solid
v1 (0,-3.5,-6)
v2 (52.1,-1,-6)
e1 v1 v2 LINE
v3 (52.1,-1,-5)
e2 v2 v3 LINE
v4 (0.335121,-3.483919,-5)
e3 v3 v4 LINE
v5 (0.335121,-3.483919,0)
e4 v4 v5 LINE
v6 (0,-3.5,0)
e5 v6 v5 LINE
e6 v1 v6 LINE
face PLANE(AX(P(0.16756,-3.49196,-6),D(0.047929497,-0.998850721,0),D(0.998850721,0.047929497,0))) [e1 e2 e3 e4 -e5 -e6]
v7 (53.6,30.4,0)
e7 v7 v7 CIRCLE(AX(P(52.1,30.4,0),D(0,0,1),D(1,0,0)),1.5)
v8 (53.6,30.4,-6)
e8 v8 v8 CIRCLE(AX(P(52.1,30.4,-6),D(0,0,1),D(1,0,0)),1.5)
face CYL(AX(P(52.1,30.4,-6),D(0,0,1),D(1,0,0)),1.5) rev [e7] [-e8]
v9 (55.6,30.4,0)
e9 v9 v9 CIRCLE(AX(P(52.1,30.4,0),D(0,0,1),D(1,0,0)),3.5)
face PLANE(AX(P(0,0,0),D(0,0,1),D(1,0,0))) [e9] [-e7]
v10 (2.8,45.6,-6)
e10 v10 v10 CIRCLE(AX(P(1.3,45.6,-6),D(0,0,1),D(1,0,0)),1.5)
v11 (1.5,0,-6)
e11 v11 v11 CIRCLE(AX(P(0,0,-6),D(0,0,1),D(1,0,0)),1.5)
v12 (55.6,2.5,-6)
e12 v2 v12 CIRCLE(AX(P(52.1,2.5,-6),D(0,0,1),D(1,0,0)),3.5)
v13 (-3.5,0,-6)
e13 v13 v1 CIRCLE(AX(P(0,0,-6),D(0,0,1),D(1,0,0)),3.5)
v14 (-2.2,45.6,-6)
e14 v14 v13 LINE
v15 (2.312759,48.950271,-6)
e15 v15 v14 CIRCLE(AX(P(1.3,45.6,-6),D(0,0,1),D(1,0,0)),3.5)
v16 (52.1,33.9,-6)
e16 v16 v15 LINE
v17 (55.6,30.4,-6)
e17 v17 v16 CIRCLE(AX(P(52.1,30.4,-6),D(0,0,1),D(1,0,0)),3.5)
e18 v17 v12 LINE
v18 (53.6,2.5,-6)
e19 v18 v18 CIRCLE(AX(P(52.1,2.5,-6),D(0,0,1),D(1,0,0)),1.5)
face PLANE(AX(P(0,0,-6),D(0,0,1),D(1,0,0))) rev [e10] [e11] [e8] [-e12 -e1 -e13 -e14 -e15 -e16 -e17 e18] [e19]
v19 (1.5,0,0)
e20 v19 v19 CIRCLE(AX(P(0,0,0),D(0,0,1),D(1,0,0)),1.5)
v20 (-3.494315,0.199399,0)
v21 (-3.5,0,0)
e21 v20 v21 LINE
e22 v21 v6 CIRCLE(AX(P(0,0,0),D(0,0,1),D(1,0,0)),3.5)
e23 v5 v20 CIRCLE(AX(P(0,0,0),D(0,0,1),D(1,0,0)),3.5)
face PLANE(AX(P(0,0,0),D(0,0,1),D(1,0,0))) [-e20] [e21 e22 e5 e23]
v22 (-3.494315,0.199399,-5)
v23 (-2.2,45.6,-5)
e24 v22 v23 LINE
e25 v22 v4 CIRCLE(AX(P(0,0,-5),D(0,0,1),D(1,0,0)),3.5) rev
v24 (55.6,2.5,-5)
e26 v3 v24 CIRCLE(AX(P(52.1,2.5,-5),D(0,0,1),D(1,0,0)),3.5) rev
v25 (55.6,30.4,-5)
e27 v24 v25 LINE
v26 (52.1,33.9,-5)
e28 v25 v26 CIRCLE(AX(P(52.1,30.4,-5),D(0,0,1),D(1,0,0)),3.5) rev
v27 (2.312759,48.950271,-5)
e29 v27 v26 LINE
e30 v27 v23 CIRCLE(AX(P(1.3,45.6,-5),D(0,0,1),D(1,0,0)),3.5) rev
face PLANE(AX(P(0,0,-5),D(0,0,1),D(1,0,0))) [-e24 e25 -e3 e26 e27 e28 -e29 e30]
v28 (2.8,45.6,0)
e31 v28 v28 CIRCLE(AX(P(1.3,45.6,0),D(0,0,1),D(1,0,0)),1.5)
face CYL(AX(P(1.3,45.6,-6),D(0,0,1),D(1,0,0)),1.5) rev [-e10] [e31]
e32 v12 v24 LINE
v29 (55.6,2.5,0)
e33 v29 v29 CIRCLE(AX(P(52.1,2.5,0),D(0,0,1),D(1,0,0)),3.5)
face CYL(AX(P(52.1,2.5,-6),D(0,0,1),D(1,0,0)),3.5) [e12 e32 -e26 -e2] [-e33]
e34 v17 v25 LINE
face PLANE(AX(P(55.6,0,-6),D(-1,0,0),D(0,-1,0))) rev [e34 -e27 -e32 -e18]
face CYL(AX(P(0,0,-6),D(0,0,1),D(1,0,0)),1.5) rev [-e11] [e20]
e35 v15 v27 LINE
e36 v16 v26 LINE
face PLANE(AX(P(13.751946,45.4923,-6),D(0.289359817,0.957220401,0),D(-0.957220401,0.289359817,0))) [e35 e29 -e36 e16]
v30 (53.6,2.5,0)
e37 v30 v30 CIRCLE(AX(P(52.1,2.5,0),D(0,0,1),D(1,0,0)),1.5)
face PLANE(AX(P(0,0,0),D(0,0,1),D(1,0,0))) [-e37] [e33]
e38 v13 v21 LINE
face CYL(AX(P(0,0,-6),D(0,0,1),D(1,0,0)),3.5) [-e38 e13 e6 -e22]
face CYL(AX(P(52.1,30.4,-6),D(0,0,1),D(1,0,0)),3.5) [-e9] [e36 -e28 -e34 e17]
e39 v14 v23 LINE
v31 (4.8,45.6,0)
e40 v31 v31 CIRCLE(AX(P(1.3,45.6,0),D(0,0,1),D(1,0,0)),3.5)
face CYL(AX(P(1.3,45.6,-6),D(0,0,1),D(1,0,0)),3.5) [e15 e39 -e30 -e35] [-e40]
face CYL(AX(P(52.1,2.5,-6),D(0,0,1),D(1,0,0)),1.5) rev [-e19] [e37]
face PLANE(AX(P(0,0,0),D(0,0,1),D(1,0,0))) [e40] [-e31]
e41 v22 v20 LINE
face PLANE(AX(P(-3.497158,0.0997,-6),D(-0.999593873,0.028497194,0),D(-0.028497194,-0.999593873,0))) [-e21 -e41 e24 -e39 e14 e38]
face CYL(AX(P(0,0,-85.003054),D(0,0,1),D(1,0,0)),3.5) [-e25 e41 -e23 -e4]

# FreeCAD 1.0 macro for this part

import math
import FreeCAD as App
import Part
import Sketcher
from FreeCAD import Vector

doc = App.newDocument("Part")
body = doc.addObject("PartDesign::Body", "Body")

# Sketch on XY plane
sketch1 = body.newObject("Sketcher::SketchObject", "Sketch")
sketch1.AttachmentSupport = (doc.getObject("XY_Plane"), [""])
sketch1.MapMode = "FlatFace"
sketch1.addGeometry(Part.LineSegment(Vector(-2.2, 45.6, 0), Vector(-3.49, 0.2, 0)), False)
sketch1.addGeometry(Part.LineSegment(Vector(-3.49, 0.2, 0), Vector(-3.5, 0, 0)), False)
sketch1.addGeometry(Part.ArcOfCircle(Part.Circle(Vector(0, 0, 0), Vector(0, 0, 1), 3.5), math.radians(-180), math.radians(-90)), False)
sketch1.addGeometry(Part.LineSegment(Vector(0, -3.5, 0), Vector(0.34, -3.48, 0)), False)
sketch1.addGeometry(Part.LineSegment(Vector(0.34, -3.48, 0), Vector(52.1, -1, 0)), False)
sketch1.addGeometry(Part.ArcOfCircle(Part.Circle(Vector(52.1, 2.5, 0), Vector(0, 0, 1), 3.5), math.radians(-90), math.radians(0)), False)
sketch1.addGeometry(Part.LineSegment(Vector(55.6, 2.5, 0), Vector(55.6, 30.4, 0)), False)
sketch1.addGeometry(Part.ArcOfCircle(Part.Circle(Vector(52.1, 30.4, 0), Vector(0, 0, 1), 3.5), math.radians(0), math.radians(90)), False)
sketch1.addGeometry(Part.LineSegment(Vector(52.1, 33.9, 0), Vector(2.31, 48.95, 0)), False)
sketch1.addGeometry(Part.ArcOfCircle(Part.Circle(Vector(1.3, 45.6, 0), Vector(0, 0, 1), 3.5), math.radians(73), math.radians(180)), False)
sketch1.addGeometry(Part.Circle(Vector(1.3, 45.6, 0), Vector(0, 0, 1), 1.5), False)
sketch1.addGeometry(Part.Circle(Vector(0, 0, 0), Vector(0, 0, 1), 1.5), False)
sketch1.addGeometry(Part.Circle(Vector(52.1, 2.5, 0), Vector(0, 0, 1), 1.5), False)
sketch1.addGeometry(Part.Circle(Vector(52.1, 30.4, 0), Vector(0, 0, 1), 1.5), False)
sketch1.addConstraint(Sketcher.Constraint("Coincident", 0, 2, 1, 1))
sketch1.addConstraint(Sketcher.Constraint("Coincident", 1, 2, 2, 1))
sketch1.addConstraint(Sketcher.Constraint("Coincident", 2, 2, 3, 1))
sketch1.addConstraint(Sketcher.Constraint("Coincident", 3, 2, 4, 1))
sketch1.addConstraint(Sketcher.Constraint("Coincident", 4, 2, 5, 1))
sketch1.addConstraint(Sketcher.Constraint("Tangent", 5, 2, 6, 1))
sketch1.addConstraint(Sketcher.Constraint("Tangent", 6, 2, 7, 1))
sketch1.addConstraint(Sketcher.Constraint("Coincident", 7, 2, 8, 1))
sketch1.addConstraint(Sketcher.Constraint("Tangent", 8, 2, 9, 1))
sketch1.addConstraint(Sketcher.Constraint("Coincident", 9, 2, 0, 1))
sketch1.addConstraint(Sketcher.Constraint("Vertical", 6))
sketch1.addConstraint(Sketcher.Constraint("Coincident", 2, 3, -1, 1))
sketch1.addConstraint(Sketcher.Constraint("Coincident", 11, 3, -1, 1))
sketch1.addConstraint(Sketcher.Constraint("Coincident", 10, 3, 9, 3))
sketch1.addConstraint(Sketcher.Constraint("Coincident", 12, 3, 5, 3))
sketch1.addConstraint(Sketcher.Constraint("Coincident", 13, 3, 7, 3))
sketch1.addConstraint(Sketcher.Constraint("Equal", 2, 5))
sketch1.addConstraint(Sketcher.Constraint("Equal", 5, 7))
sketch1.addConstraint(Sketcher.Constraint("Equal", 7, 9))
sketch1.addConstraint(Sketcher.Constraint("Equal", 10, 11))
sketch1.addConstraint(Sketcher.Constraint("Equal", 11, 12))
sketch1.addConstraint(Sketcher.Constraint("Equal", 12, 13))
sketch1.addConstraint(Sketcher.Constraint("PointOnObject", 1, 2, -1))
sketch1.addConstraint(Sketcher.Constraint("PointOnObject", 2, 2, -2))
sketch1.addConstraint(Sketcher.Constraint("Parallel", 0, 1))
sketch1.addConstraint(Sketcher.Constraint("Parallel", 3, 4))
sketch1.addConstraint(Sketcher.Constraint("Horizontal", 10, 3, 9, 2))
sketch1.addConstraint(Sketcher.Constraint("Vertical", 13, 3, 4, 2))
sketch1.addConstraint(Sketcher.Constraint("Vertical", 4, 2, 7, 2))
sketch1.addConstraint(Sketcher.Constraint("Diameter", 10, 3.0))
sketch1.addConstraint(Sketcher.Constraint("Radius", 2, 3.5))
sketch1.addConstraint(Sketcher.Constraint("DistanceY", 6, 1, 6, 2, 27.9))
sketch1.addConstraint(Sketcher.Constraint("DistanceY", 4, 2, -1, 1, 1.0))
sketch1.addConstraint(Sketcher.Constraint("DistanceX", -1, 1, 5, 3, 52.1))
sketch1.addConstraint(Sketcher.Constraint("DistanceX", -1, 1, 9, 3, 1.3))
sketch1.addConstraint(Sketcher.Constraint("DistanceY", -1, 1, 9, 3, 45.6))
sketch1.addConstraint(Sketcher.Constraint("DistanceY", -1, 1, 0, 2, 0.199399))
sketch1.addConstraint(Sketcher.Constraint("Distance", 4, 51.82444))
pad1 = body.newObject("PartDesign::Pad", "Pad")
pad1.Profile = sketch1
pad1.Length = 6
pad1.Reversed = True

# Sketch on XY plane
sketch2 = body.newObject("Sketcher::SketchObject", "Sketch001")
sketch2.AttachmentSupport = (doc.getObject("XY_Plane"), [""])
sketch2.MapMode = "FlatFace"
sketch2.addGeometry(Part.ArcOfCircle(Part.Circle(Vector(1.3, 45.6, 0), Vector(0, 0, 1), 3.5), math.radians(180), math.radians(360)), False)
sketch2.addGeometry(Part.LineSegment(Vector(-2.2, 45.6, 0), Vector(-3.5, 0.2, 0)), False)
sketch2.addGeometry(Part.ArcOfCircle(Part.Circle(Vector(0, 0, 0), Vector(0, 0, 1), 3.5), math.radians(0), math.radians(177)), False)
sketch2.addGeometry(Part.ArcOfCircle(Part.Circle(Vector(0, 0, 0), Vector(0, 0, 1), 3.5), math.radians(-85), math.radians(0)), False)
sketch2.addGeometry(Part.LineSegment(Vector(0.3, -3.5, 0), Vector(52.1, -1, 0)), False)
sketch2.addGeometry(Part.ArcOfCircle(Part.Circle(Vector(52.1, 2.5, 0), Vector(0, 0, 1), 3.5), math.radians(0), math.radians(270)), False)
sketch2.addGeometry(Part.LineSegment(Vector(55.6, 2.5, 0), Vector(55.6, 30.4, 0)), False)
sketch2.addGeometry(Part.ArcOfCircle(Part.Circle(Vector(52.1, 30.4, 0), Vector(0, 0, 1), 3.5), math.radians(90), math.radians(360)), False)
sketch2.addGeometry(Part.LineSegment(Vector(52.1, 33.9, 0), Vector(2.3, 49, 0)), False)
sketch2.addGeometry(Part.ArcOfCircle(Part.Circle(Vector(1.3, 45.6, 0), Vector(0, 0, 1), 3.5), math.radians(0), math.radians(73)), False)
sketch2.addConstraint(Sketcher.Constraint("Coincident", 0, 1, 1, 1))
sketch2.addConstraint(Sketcher.Constraint("Coincident", 1, 2, 2, 2))
sketch2.addConstraint(Sketcher.Constraint("Tangent", 2, 1, 3, 2))
sketch2.addConstraint(Sketcher.Constraint("Coincident", 3, 1, 4, 1))
sketch2.addConstraint(Sketcher.Constraint("Coincident", 4, 2, 5, 2))
sketch2.addConstraint(Sketcher.Constraint("Tangent", 5, 1, 6, 1))
sketch2.addConstraint(Sketcher.Constraint("Tangent", 6, 2, 7, 2))
sketch2.addConstraint(Sketcher.Constraint("Coincident", 7, 1, 8, 1))
sketch2.addConstraint(Sketcher.Constraint("Tangent", 8, 2, 9, 2))
sketch2.addConstraint(Sketcher.Constraint("Tangent", 9, 1, 0, 2))
sketch2.addConstraint(Sketcher.Constraint("Vertical", 6))
sketch2.addConstraint(Sketcher.Constraint("Coincident", 2, 3, -1, 1))
sketch2.addConstraint(Sketcher.Constraint("Equal", 0, 2))
sketch2.addConstraint(Sketcher.Constraint("Equal", 2, 3))
sketch2.addConstraint(Sketcher.Constraint("Equal", 3, 5))
sketch2.addConstraint(Sketcher.Constraint("Equal", 5, 7))
sketch2.addConstraint(Sketcher.Constraint("Equal", 7, 9))
sketch2.addConstraint(Sketcher.Constraint("PointOnObject", 2, 1, -1))
sketch2.addConstraint(Sketcher.Constraint("Horizontal", 9, 3, 0, 1))
sketch2.addConstraint(Sketcher.Constraint("Horizontal", 0, 1, 9, 1))
sketch2.addConstraint(Sketcher.Constraint("Vertical", 7, 3, 4, 2))
sketch2.addConstraint(Sketcher.Constraint("Vertical", 4, 2, 7, 1))
sketch2.addConstraint(Sketcher.Constraint("Radius", 0, 3.5))
sketch2.addConstraint(Sketcher.Constraint("DistanceY", 6, 1, 6, 2, 27.9))
sketch2.addConstraint(Sketcher.Constraint("DistanceY", 4, 2, -1, 1, 1.0))
sketch2.addConstraint(Sketcher.Constraint("DistanceX", -1, 1, 0, 3, 1.3))
sketch2.addConstraint(Sketcher.Constraint("DistanceY", -1, 1, 0, 3, 45.6))
sketch2.addConstraint(Sketcher.Constraint("DistanceX", -1, 1, 5, 3, 52.1))
sketch2.addConstraint(Sketcher.Constraint("DistanceY", -1, 1, 1, 2, 0.199399))
sketch2.addConstraint(Sketcher.Constraint("Distance", 4, 51.82444))
pocket1 = body.newObject("PartDesign::Pocket", "Pocket")
pocket1.Profile = sketch2
pocket1.Length = 5

doc.recompute()
